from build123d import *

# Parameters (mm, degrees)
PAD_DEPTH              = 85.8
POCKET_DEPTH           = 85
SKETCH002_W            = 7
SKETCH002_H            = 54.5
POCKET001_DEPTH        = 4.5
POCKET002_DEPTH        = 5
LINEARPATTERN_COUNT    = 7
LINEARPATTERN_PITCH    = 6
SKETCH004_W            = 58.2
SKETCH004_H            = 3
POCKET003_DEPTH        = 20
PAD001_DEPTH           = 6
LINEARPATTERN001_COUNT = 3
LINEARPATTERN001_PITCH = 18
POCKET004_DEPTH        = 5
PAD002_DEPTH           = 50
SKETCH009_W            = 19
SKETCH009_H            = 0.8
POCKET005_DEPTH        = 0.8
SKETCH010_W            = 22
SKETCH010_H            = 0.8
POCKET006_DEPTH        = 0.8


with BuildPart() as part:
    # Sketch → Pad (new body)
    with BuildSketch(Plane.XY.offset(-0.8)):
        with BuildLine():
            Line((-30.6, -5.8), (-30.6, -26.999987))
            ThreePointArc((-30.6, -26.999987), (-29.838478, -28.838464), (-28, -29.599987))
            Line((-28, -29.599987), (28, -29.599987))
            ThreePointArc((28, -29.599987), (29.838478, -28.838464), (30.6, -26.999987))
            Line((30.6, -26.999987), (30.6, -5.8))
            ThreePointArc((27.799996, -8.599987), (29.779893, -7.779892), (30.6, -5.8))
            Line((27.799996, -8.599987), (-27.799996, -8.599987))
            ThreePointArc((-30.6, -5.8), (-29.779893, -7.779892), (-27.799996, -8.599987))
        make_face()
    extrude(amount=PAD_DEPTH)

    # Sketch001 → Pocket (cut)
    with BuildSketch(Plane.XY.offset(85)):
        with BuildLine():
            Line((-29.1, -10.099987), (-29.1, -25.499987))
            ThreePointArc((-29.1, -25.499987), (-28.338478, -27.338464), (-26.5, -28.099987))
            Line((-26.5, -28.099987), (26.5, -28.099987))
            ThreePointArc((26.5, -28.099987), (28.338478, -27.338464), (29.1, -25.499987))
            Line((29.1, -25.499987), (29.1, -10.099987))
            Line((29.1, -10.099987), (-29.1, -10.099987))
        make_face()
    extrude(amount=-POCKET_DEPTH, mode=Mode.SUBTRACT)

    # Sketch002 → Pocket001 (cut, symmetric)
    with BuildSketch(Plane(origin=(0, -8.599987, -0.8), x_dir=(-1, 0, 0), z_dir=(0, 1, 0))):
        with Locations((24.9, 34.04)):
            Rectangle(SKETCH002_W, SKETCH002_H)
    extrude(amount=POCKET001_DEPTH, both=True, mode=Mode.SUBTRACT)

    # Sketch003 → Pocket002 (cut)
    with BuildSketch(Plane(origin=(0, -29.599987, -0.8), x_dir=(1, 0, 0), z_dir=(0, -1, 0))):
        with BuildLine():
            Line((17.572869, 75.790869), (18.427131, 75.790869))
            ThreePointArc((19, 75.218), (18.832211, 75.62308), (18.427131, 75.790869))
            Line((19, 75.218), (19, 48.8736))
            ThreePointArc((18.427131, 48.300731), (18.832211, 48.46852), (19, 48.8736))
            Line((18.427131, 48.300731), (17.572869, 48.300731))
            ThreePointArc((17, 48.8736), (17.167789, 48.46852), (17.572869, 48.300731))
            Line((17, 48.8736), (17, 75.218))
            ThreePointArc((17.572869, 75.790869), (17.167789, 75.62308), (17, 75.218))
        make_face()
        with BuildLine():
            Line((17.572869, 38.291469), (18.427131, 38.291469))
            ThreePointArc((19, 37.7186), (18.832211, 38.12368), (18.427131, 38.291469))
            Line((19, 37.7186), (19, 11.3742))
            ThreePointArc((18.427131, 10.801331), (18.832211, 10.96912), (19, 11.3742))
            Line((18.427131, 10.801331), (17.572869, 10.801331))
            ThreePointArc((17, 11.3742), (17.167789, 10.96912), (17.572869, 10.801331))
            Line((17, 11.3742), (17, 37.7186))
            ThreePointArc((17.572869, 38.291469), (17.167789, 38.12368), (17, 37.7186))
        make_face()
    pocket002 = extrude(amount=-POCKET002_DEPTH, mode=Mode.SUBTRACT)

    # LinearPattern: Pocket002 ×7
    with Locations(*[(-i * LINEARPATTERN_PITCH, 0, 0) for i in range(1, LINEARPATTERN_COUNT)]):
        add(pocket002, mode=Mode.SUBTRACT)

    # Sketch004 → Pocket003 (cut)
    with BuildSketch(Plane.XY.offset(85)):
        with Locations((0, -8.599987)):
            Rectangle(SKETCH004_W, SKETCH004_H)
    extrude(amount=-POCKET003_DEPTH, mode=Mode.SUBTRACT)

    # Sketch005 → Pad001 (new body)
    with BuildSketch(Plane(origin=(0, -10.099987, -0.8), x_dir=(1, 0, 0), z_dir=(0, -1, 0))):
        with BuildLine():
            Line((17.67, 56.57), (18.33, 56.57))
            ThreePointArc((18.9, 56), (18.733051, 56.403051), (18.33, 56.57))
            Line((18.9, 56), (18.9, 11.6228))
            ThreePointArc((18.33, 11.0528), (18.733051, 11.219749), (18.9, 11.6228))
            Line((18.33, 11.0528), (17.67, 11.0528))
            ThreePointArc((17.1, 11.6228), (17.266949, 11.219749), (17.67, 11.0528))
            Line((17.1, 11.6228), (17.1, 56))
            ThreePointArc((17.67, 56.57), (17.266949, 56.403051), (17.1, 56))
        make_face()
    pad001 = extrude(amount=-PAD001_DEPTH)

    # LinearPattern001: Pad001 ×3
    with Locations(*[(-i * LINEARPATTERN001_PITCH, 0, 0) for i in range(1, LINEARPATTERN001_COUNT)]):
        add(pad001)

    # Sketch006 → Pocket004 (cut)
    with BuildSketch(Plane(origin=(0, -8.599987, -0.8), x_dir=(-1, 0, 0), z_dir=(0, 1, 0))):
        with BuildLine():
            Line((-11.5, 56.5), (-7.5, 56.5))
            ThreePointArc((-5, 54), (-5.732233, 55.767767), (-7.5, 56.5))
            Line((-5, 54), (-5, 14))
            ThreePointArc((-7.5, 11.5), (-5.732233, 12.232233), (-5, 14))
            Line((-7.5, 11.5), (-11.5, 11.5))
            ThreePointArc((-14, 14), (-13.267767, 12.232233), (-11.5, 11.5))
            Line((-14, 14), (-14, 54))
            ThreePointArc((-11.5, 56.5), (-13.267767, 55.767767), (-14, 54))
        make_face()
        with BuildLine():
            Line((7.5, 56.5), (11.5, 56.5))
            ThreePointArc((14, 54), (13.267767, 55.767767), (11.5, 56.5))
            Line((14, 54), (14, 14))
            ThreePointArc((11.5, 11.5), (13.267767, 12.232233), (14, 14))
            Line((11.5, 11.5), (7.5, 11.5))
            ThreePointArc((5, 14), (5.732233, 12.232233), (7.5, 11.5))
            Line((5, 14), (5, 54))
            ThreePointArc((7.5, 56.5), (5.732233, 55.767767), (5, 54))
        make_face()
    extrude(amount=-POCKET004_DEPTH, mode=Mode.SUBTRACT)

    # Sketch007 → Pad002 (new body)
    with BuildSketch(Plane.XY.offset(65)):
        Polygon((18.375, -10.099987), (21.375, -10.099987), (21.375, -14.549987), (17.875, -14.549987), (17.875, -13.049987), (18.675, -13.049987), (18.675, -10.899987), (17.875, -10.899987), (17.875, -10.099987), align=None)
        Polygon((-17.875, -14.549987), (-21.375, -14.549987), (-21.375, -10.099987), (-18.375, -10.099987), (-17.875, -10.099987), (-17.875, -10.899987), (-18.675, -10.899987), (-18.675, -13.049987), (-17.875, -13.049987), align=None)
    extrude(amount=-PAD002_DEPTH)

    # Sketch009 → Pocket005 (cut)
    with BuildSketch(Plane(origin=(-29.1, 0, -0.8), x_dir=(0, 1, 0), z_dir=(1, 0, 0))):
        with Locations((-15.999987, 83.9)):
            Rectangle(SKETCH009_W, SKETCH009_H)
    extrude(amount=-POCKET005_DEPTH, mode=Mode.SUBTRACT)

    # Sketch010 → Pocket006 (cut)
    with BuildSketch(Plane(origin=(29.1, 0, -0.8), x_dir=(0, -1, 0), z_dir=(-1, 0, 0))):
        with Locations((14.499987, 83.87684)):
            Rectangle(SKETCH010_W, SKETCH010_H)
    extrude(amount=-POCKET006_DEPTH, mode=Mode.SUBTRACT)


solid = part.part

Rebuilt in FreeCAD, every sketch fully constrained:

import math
import FreeCAD as App
import Part
import Sketcher

V = App.Vector
Q = App.Units.Quantity


def add_polygon(sketch, points):
    """Adds a closed chain of lines whose ends are joined by coincident constraints."""
    first, n = sketch.GeometryCount, len(points)
    for a, b in zip(points, points[1:] + points[:1]):
        sketch.addGeometry(Part.LineSegment(App.Vector(*a, 0), App.Vector(*b, 0)), False)
    for i in range(n):
        sketch.addConstraint(Sketcher.Constraint("Coincident", first + i, 2, first + (i + 1) % n, 1))

doc = App.newDocument("Part")
body = doc.addObject("PartDesign::Body", "Body")

# Sketch on XY plane
sketch1 = body.newObject("Sketcher::SketchObject", "Sketch")
sketch1.AttachmentSupport = (doc.getObject("XY_Plane"), [""])
sketch1.MapMode = "FlatFace"
sketch1.AttachmentOffset = App.Placement(V(0, 0, -0.8), App.Rotation())
sketch1.addGeometry([
    Part.LineSegment(V(-30.6, -5.8, 0), V(-30.6, -27, 0)),  # 0
    Part.ArcOfCircle(Part.Circle(V(-28, -27, 0), V(0, 0, 1), 2.6), math.radians(-180), math.radians(-90)),  # 1
    Part.LineSegment(V(-28, -29.6, 0), V(28, -29.6, 0)),  # 2
    Part.ArcOfCircle(Part.Circle(V(28, -27, 0), V(0, 0, 1), 2.6), math.radians(-90), math.radians(0)),  # 3
    Part.LineSegment(V(30.6, -27, 0), V(30.6, -5.8, 0)),  # 4
    Part.ArcOfCircle(Part.Circle(V(27.8, -5.8, 0), V(0, 0, 1), 2.8), math.radians(-90), math.radians(0)),  # 5
    Part.LineSegment(V(27.8, -8.6, 0), V(-27.8, -8.6, 0)),  # 6
    Part.ArcOfCircle(Part.Circle(V(-27.8, -5.8, 0), V(0, 0, 1), 2.8), math.radians(-180), math.radians(-90)),  # 7
], False)
sketch1.addConstraint([
    Sketcher.Constraint("Tangent", 0, 2, 1, 1),
    Sketcher.Constraint("Tangent", 1, 2, 2, 1),
    Sketcher.Constraint("Tangent", 2, 2, 3, 1),
    Sketcher.Constraint("Tangent", 3, 2, 4, 1),
    Sketcher.Constraint("Coincident", 4, 2, 5, 2),
    Sketcher.Constraint("Tangent", 5, 1, 6, 1),
    Sketcher.Constraint("Tangent", 6, 2, 7, 2),
    Sketcher.Constraint("Coincident", 7, 1, 0, 1),
    Sketcher.Constraint("Vertical", 0),
    Sketcher.Constraint("Horizontal", 2),
    Sketcher.Constraint("Vertical", 4),
    Sketcher.Constraint("Horizontal", 6),
    Sketcher.Constraint("Equal", 1, 3),
    Sketcher.Constraint("Equal", 5, 7),
    Sketcher.Constraint("Symmetric", 4, 2, 7, 1, -2),
    Sketcher.Constraint("Radius", 1, Q("2.6 mm")),
    Sketcher.Constraint("Radius", 5, Q("2.8 mm")),
    Sketcher.Constraint("DistanceX", 2, 1, 2, 2, Q("56 mm")),
    Sketcher.Constraint("DistanceY", 2, 2, 5, 1, Q("21 mm")),
    Sketcher.Constraint("DistanceY", 4, 2, -1, 1, Q("5.8 mm")),
    Sketcher.Constraint("DistanceY", 0, 2, 0, 1, Q("21.199987 mm")),
])
pad1 = body.newObject("PartDesign::Pad", "Pad")
pad1.Profile = sketch1
pad1.Length = 85.8

# Sketch on XY plane
sketch2 = body.newObject("Sketcher::SketchObject", "Sketch001")
sketch2.AttachmentSupport = (doc.getObject("XY_Plane"), [""])
sketch2.MapMode = "FlatFace"
sketch2.AttachmentOffset = App.Placement(V(0, 0, 85), App.Rotation())
sketch2.addGeometry([
    Part.LineSegment(V(-29.1, -10.1, 0), V(-29.1, -25.5, 0)),  # 0
    Part.ArcOfCircle(Part.Circle(V(-26.5, -25.5, 0), V(0, 0, 1), 2.6), math.radians(-180), math.radians(-90)),  # 1
    Part.LineSegment(V(-26.5, -28.1, 0), V(26.5, -28.1, 0)),  # 2
    Part.ArcOfCircle(Part.Circle(V(26.5, -25.5, 0), V(0, 0, 1), 2.6), math.radians(-90), math.radians(0)),  # 3
    Part.LineSegment(V(29.1, -25.5, 0), V(29.1, -10.1, 0)),  # 4
    Part.LineSegment(V(29.1, -10.1, 0), V(-29.1, -10.1, 0)),  # 5
], False)
sketch2.addConstraint([
    Sketcher.Constraint("Tangent", 0, 2, 1, 1),
    Sketcher.Constraint("Tangent", 1, 2, 2, 1),
    Sketcher.Constraint("Tangent", 2, 2, 3, 1),
    Sketcher.Constraint("Tangent", 3, 2, 4, 1),
    Sketcher.Constraint("Coincident", 4, 2, 5, 1),
    Sketcher.Constraint("Coincident", 5, 2, 0, 1),
    Sketcher.Constraint("Vertical", 0),
    Sketcher.Constraint("Horizontal", 2),
    Sketcher.Constraint("Vertical", 4),
    Sketcher.Constraint("Horizontal", 5),
    Sketcher.Constraint("Equal", 1, 3),
    Sketcher.Constraint("Radius", 1, Q("2.6 mm")),
    Sketcher.Constraint("DistanceX", 2, 1, 2, 2, Q("53 mm")),
    Sketcher.Constraint("DistanceY", 0, 2, 0, 1, Q("15.4 mm")),
    Sketcher.Constraint("DistanceX", 1, 3, -1, 1, Q("26.5 mm")),
    Sketcher.Constraint("DistanceY", 1, 3, -1, 1, Q("25.499987 mm")),
])
pocket1 = body.newObject("PartDesign::Pocket", "Pocket")
pocket1.Profile = sketch2
pocket1.Length = 85

# Sketch on XZ plane
sketch3 = body.newObject("Sketcher::SketchObject", "Sketch002")
sketch3.AttachmentSupport = (doc.getObject("XZ_Plane"), [""])
sketch3.MapMode = "FlatFace"
sketch3.AttachmentOffset = App.Placement(V(0, 0, 8.599987), App.Rotation())
add_polygon(sketch3, [(-21, 60), (-21, 6), (-28, 6), (-28, 60)])  # lines 0-3
sketch3.addConstraint([
    Sketcher.Constraint("Vertical", 0),
    Sketcher.Constraint("Horizontal", 1),
    Sketcher.Constraint("Vertical", 2),
    Sketcher.Constraint("Horizontal", 3),
    Sketcher.Constraint("DistanceX", 1, 2, 1, 1, Q("7 mm")),
    Sketcher.Constraint("DistanceY", 0, 2, 0, 1, Q("54.5 mm")),
    Sketcher.Constraint("DistanceX", 0, 2, -1, 1, Q("21.4 mm")),
    Sketcher.Constraint("DistanceY", -1, 1, 0, 2, Q("5.99 mm")),
])
pocket2 = body.newObject("PartDesign::Pocket", "Pocket001")
pocket2.Profile = sketch3
pocket2.Length = 9
pocket2.Midplane = True

# Sketch on XZ plane
sketch4 = body.newObject("Sketcher::SketchObject", "Sketch003")
sketch4.AttachmentSupport = (doc.getObject("XZ_Plane"), [""])
sketch4.MapMode = "FlatFace"
sketch4.AttachmentOffset = App.Placement(V(0, 0, 29.599987), App.Rotation())
sketch4.addGeometry([
    Part.LineSegment(V(18.4, 75, 0), V(17.6, 75, 0)),  # 0
    Part.ArcOfCircle(Part.Circle(V(17.6, 74.4, 0), V(0, 0, 1), 0.6), math.radians(90), math.radians(180)),  # 1
    Part.LineSegment(V(17, 74.4, 0), V(17, 48.1, 0)),  # 2
    Part.ArcOfCircle(Part.Circle(V(17.6, 48.1, 0), V(0, 0, 1), 0.6), math.radians(180), math.radians(270)),  # 3
    Part.LineSegment(V(17.6, 47.5, 0), V(18.4, 47.5, 0)),  # 4
    Part.ArcOfCircle(Part.Circle(V(18.4, 48.1, 0), V(0, 0, 1), 0.6), math.radians(-90), math.radians(0)),  # 5
    Part.LineSegment(V(19, 48.1, 0), V(19, 74.4, 0)),  # 6
    Part.ArcOfCircle(Part.Circle(V(18.4, 74.4, 0), V(0, 0, 1), 0.6), math.radians(0), math.radians(90)),  # 7
    Part.LineSegment(V(18.4, 37.5, 0), V(17.6, 37.5, 0)),  # 8
    Part.ArcOfCircle(Part.Circle(V(17.6, 36.9, 0), V(0, 0, 1), 0.6), math.radians(90), math.radians(180)),  # 9
    Part.LineSegment(V(17, 36.9, 0), V(17, 10.6, 0)),  # 10
    Part.ArcOfCircle(Part.Circle(V(17.6, 10.6, 0), V(0, 0, 1), 0.6), math.radians(180), math.radians(270)),  # 11
    Part.LineSegment(V(17.6, 10, 0), V(18.4, 10, 0)),  # 12
    Part.ArcOfCircle(Part.Circle(V(18.4, 10.6, 0), V(0, 0, 1), 0.6), math.radians(-90), math.radians(0)),  # 13
    Part.LineSegment(V(19, 10.6, 0), V(19, 36.9, 0)),  # 14
    Part.ArcOfCircle(Part.Circle(V(18.4, 36.9, 0), V(0, 0, 1), 0.6), math.radians(0), math.radians(90)),  # 15
], False)
sketch4.addConstraint([
    Sketcher.Constraint("Coincident", 0, 2, 1, 1),
    Sketcher.Constraint("Coincident", 1, 2, 2, 1),
    Sketcher.Constraint("Coincident", 2, 2, 3, 1),
    Sketcher.Constraint("Coincident", 3, 2, 4, 1),
    Sketcher.Constraint("Coincident", 4, 2, 5, 1),
    Sketcher.Constraint("Coincident", 5, 2, 6, 1),
    Sketcher.Constraint("Coincident", 6, 2, 7, 1),
    Sketcher.Constraint("Coincident", 7, 2, 0, 1),
    Sketcher.Constraint("Coincident", 8, 2, 9, 1),
    Sketcher.Constraint("Coincident", 9, 2, 10, 1),
    Sketcher.Constraint("Coincident", 10, 2, 11, 1),
    Sketcher.Constraint("Coincident", 11, 2, 12, 1),
    Sketcher.Constraint("Coincident", 12, 2, 13, 1),
    Sketcher.Constraint("Coincident", 13, 2, 14, 1),
    Sketcher.Constraint("Coincident", 14, 2, 15, 1),
    Sketcher.Constraint("Coincident", 15, 2, 8, 1),
    Sketcher.Constraint("Horizontal", 0),
    Sketcher.Constraint("Vertical", 2),
    Sketcher.Constraint("Horizontal", 4),
    Sketcher.Constraint("Vertical", 6),
    Sketcher.Constraint("Horizontal", 8),
    Sketcher.Constraint("Vertical", 10),
    Sketcher.Constraint("Horizontal", 12),
    Sketcher.Constraint("Vertical", 14),
    Sketcher.Constraint("Equal", 1, 3),
    Sketcher.Constraint("Equal", 3, 5),
    Sketcher.Constraint("Equal", 5, 7),
    Sketcher.Constraint("Equal", 7, 9),
    Sketcher.Constraint("Equal", 9, 11),
    Sketcher.Constraint("Equal", 11, 13),
    Sketcher.Constraint("Equal", 13, 15),
    Sketcher.Constraint("Horizontal", 7, 3, 1, 2),
    Sketcher.Constraint("Horizontal", 5, 3, 2, 2),
    Sketcher.Constraint("Horizontal", 2, 2, 5, 2),
    Sketcher.Constraint("Horizontal", 1, 2, 6, 2),
    Sketcher.Constraint("Horizontal", 15, 3, 9, 2),
    Sketcher.Constraint("Horizontal", 13, 3, 10, 2),
    Sketcher.Constraint("Horizontal", 10, 2, 13, 2),
    Sketcher.Constraint("Horizontal", 9, 2, 14, 2),
    Sketcher.Constraint("Vertical", 3, 3, 9, 3),
    Sketcher.Constraint("Vertical", 7, 3, 13, 3),
    Sketcher.Constraint("Vertical", 11, 3, 0, 2),
    Sketcher.Constraint("Vertical", 0, 2, 3, 2),
    Sketcher.Constraint("Vertical", 15, 3, 4, 2),
    Sketcher.Constraint("Vertical", 4, 2, 7, 2),
    Sketcher.Constraint("Vertical", 3, 2, 8, 2),
    Sketcher.Constraint("Vertical", 8, 2, 11, 2),
    Sketcher.Constraint("Vertical", 7, 2, 12, 2),
    Sketcher.Constraint("Vertical", 12, 2, 15, 2),
    Sketcher.Constraint("Equal", 6, 10),
    Sketcher.Constraint("DistanceX", -1, 1, 1, 2, Q("17 mm")),
    Sketcher.Constraint("DistanceX", -1, 1, 5, 2, Q("19 mm")),
    Sketcher.Constraint("DistanceY", 2, 2, 2, 1, Q("26.3444 mm")),
    Sketcher.Constraint("DistanceY", -1, 1, 1, 3, Q("74.418002 mm")),
    Sketcher.Constraint("Radius", 1, Q("0.572867 mm")),
    Sketcher.Constraint("DistanceY", 9, 3, 2, 2, Q("11.154998 mm")),
])
pocket3 = body.newObject("PartDesign::Pocket", "Pocket002")
pocket3.Profile = sketch4
pocket3.Length = 5
doc.recompute()

linearpattern = body.newObject("PartDesign::LinearPattern", "LinearPattern")
linearpattern.Originals = [pocket3]
linearpattern.Direction = (doc.getObject("X_Axis"), [""])
linearpattern.Mode = "offset"
linearpattern.Offset = 6
linearpattern.Occurrences = 7
linearpattern.Reversed = True
body.Tip = linearpattern

# Sketch on XY plane
sketch5 = body.newObject("Sketcher::SketchObject", "Sketch004")
sketch5.AttachmentSupport = (doc.getObject("XY_Plane"), [""])
sketch5.MapMode = "FlatFace"
sketch5.AttachmentOffset = App.Placement(V(0, 0, 85), App.Rotation())
add_polygon(sketch5, [(-29.1, -7.1), (-29.1, -10.1), (29.1, -10.1), (29.1, -7.1)])  # lines 0-3
sketch5.addConstraint([
    Sketcher.Constraint("Vertical", 0),
    Sketcher.Constraint("Horizontal", 1),
    Sketcher.Constraint("Vertical", 2),
    Sketcher.Constraint("Horizontal", 3),
    Sketcher.Constraint("DistanceY", 0, 2, 0, 1, Q("3 mm")),
    Sketcher.Constraint("DistanceX", 1, 1, 1, 2, Q("58.2 mm")),
    Sketcher.Constraint("DistanceX", 0, 2, -1, 1, Q("29.1 mm")),
    Sketcher.Constraint("DistanceY", 0, 2, -1, 1, Q("10.099987 mm")),
])
pocket4 = body.newObject("PartDesign::Pocket", "Pocket003")
pocket4.Profile = sketch5
pocket4.Length = 20

# Sketch on XZ plane
sketch6 = body.newObject("Sketcher::SketchObject", "Sketch005")
sketch6.AttachmentSupport = (doc.getObject("XZ_Plane"), [""])
sketch6.MapMode = "FlatFace"
sketch6.AttachmentOffset = App.Placement(V(0, 0, 10.099987), App.Rotation())
sketch6.addGeometry([
    Part.LineSegment(V(18.3, 55.8, 0), V(17.7, 55.8, 0)),  # 0
    Part.ArcOfCircle(Part.Circle(V(17.7, 55.2, 0), V(0, 0, 1), 0.6), math.radians(90), math.radians(180)),  # 1
    Part.LineSegment(V(17.1, 55.2, 0), V(17.1, 10.8, 0)),  # 2
    Part.ArcOfCircle(Part.Circle(V(17.7, 10.8, 0), V(0, 0, 1), 0.6), math.radians(180), math.radians(270)),  # 3
    Part.LineSegment(V(17.7, 10.3, 0), V(18.3, 10.3, 0)),  # 4
    Part.ArcOfCircle(Part.Circle(V(18.3, 10.8, 0), V(0, 0, 1), 0.6), math.radians(-90), math.radians(0)),  # 5
    Part.LineSegment(V(18.9, 10.8, 0), V(18.9, 55.2, 0)),  # 6
    Part.ArcOfCircle(Part.Circle(V(18.3, 55.2, 0), V(0, 0, 1), 0.6), math.radians(0), math.radians(90)),  # 7
], False)
sketch6.addConstraint([
    Sketcher.Constraint("Tangent", 0, 2, 1, 1),
    Sketcher.Constraint("Tangent", 1, 2, 2, 1),
    Sketcher.Constraint("Tangent", 2, 2, 3, 1),
    Sketcher.Constraint("Tangent", 3, 2, 4, 1),
    Sketcher.Constraint("Tangent", 4, 2, 5, 1),
    Sketcher.Constraint("Tangent", 5, 2, 6, 1),
    Sketcher.Constraint("Tangent", 6, 2, 7, 1),
    Sketcher.Constraint("Tangent", 7, 2, 0, 1),
    Sketcher.Constraint("Horizontal", 0),
    Sketcher.Constraint("Vertical", 2),
    Sketcher.Constraint("Horizontal", 4),
    Sketcher.Constraint("Vertical", 6),
    Sketcher.Constraint("Equal", 1, 3),
    Sketcher.Constraint("Equal", 3, 5),
    Sketcher.Constraint("Equal", 5, 7),
    Sketcher.Constraint("Radius", 1, Q("0.57 mm")),
    Sketcher.Constraint("DistanceX", 0, 2, 0, 1, Q("0.66 mm")),
    Sketcher.Constraint("DistanceY", -1, 1, 1, 3, Q("55.2 mm")),
    Sketcher.Constraint("DistanceX", -1, 1, 1, 2, Q("17.1 mm")),
    Sketcher.Constraint("DistanceY", 2, 2, 2, 1, Q("44.3772 mm")),
])
pad2 = body.newObject("PartDesign::Pad", "Pad001")
pad2.Profile = sketch6
pad2.Length = 6
pad2.Reversed = True
doc.recompute()

linearpattern2 = body.newObject("PartDesign::LinearPattern", "LinearPattern001")
linearpattern2.Originals = [pad2]
linearpattern2.Direction = (doc.getObject("X_Axis"), [""])
linearpattern2.Mode = "offset"
linearpattern2.Offset = 18
linearpattern2.Occurrences = 3
linearpattern2.Reversed = True
body.Tip = linearpattern2

# Sketch on XZ plane
sketch7 = body.newObject("Sketcher::SketchObject", "Sketch006")
sketch7.AttachmentSupport = (doc.getObject("XZ_Plane"), [""])
sketch7.MapMode = "FlatFace"
sketch7.AttachmentOffset = App.Placement(V(0, 0, 8.599987), App.Rotation())
sketch7.addGeometry([
    Part.LineSegment(V(7.5, 55.7, 0), V(11.5, 55.7, 0)),  # 0
    Part.ArcOfCircle(Part.Circle(V(11.5, 53.2, 0), V(0, 0, 1), 2.5), math.radians(0), math.radians(90)),  # 1
    Part.LineSegment(V(14, 53.2, 0), V(14, 13.2, 0)),  # 2
    Part.ArcOfCircle(Part.Circle(V(11.5, 13.2, 0), V(0, 0, 1), 2.5), math.radians(-90), math.radians(0)),  # 3
    Part.LineSegment(V(11.5, 10.7, 0), V(7.5, 10.7, 0)),  # 4
    Part.ArcOfCircle(Part.Circle(V(7.5, 13.2, 0), V(0, 0, 1), 2.5), math.radians(180), math.radians(270)),  # 5
    Part.LineSegment(V(5, 13.2, 0), V(5, 53.2, 0)),  # 6
    Part.ArcOfCircle(Part.Circle(V(7.5, 53.2, 0), V(0, 0, 1), 2.5), math.radians(90), math.radians(180)),  # 7
    Part.LineSegment(V(-11.5, 55.7, 0), V(-7.5, 55.7, 0)),  # 8
    Part.ArcOfCircle(Part.Circle(V(-7.5, 53.2, 0), V(0, 0, 1), 2.5), math.radians(0), math.radians(90)),  # 9
    Part.LineSegment(V(-5, 53.2, 0), V(-5, 13.2, 0)),  # 10
    Part.ArcOfCircle(Part.Circle(V(-7.5, 13.2, 0), V(0, 0, 1), 2.5), math.radians(-90), math.radians(0)),  # 11
    Part.LineSegment(V(-7.5, 10.7, 0), V(-11.5, 10.7, 0)),  # 12
    Part.ArcOfCircle(Part.Circle(V(-11.5, 13.2, 0), V(0, 0, 1), 2.5), math.radians(180), math.radians(270)),  # 13
    Part.LineSegment(V(-14, 13.2, 0), V(-14, 53.2, 0)),  # 14
    Part.ArcOfCircle(Part.Circle(V(-11.5, 53.2, 0), V(0, 0, 1), 2.5), math.radians(90), math.radians(180)),  # 15
], False)
sketch7.addConstraint([
    Sketcher.Constraint("Tangent", 0, 2, 1, 2),
    Sketcher.Constraint("Tangent", 1, 1, 2, 1),
    Sketcher.Constraint("Tangent", 2, 2, 3, 2),
    Sketcher.Constraint("Tangent", 3, 1, 4, 1),
    Sketcher.Constraint("Tangent", 4, 2, 5, 2),
    Sketcher.Constraint("Tangent", 5, 1, 6, 1),
    Sketcher.Constraint("Tangent", 6, 2, 7, 2),
    Sketcher.Constraint("Tangent", 7, 1, 0, 1),
    Sketcher.Constraint("Tangent", 8, 2, 9, 2),
    Sketcher.Constraint("Tangent", 9, 1, 10, 1),
    Sketcher.Constraint("Tangent", 10, 2, 11, 2),
    Sketcher.Constraint("Tangent", 11, 1, 12, 1),
    Sketcher.Constraint("Tangent", 12, 2, 13, 2),
    Sketcher.Constraint("Tangent", 13, 1, 14, 1),
    Sketcher.Constraint("Tangent", 14, 2, 15, 2),
    Sketcher.Constraint("Tangent", 15, 1, 8, 1),
    Sketcher.Constraint("Horizontal", 0),
    Sketcher.Constraint("Vertical", 2),
    Sketcher.Constraint("Horizontal", 4),
    Sketcher.Constraint("Vertical", 6),
    Sketcher.Constraint("Horizontal", 8),
    Sketcher.Constraint("Vertical", 10),
    Sketcher.Constraint("Horizontal", 12),
    Sketcher.Constraint("Vertical", 14),
    Sketcher.Constraint("Equal", 1, 3),
    Sketcher.Constraint("Equal", 3, 5),
    Sketcher.Constraint("Equal", 5, 7),
    Sketcher.Constraint("Equal", 7, 9),
    Sketcher.Constraint("Equal", 9, 11),
    Sketcher.Constraint("Equal", 11, 13),
    Sketcher.Constraint("Equal", 13, 15),
    Sketcher.Constraint("Symmetric", 7, 3, 9, 3, -2),
    Sketcher.Constraint("Symmetric", 3, 3, 13, 3, -2),
    Sketcher.Constraint("Radius", 1, Q("2.5 mm")),
    Sketcher.Constraint("DistanceX", 0, 1, 0, 2, Q("4 mm")),
    Sketcher.Constraint("DistanceY", 2, 2, 2, 1, Q("40 mm")),
    Sketcher.Constraint("DistanceX", -1, 1, 1, 1, Q("14 mm")),
    Sketcher.Constraint("DistanceY", -1, 1, 1, 3, Q("53.2 mm")),
])
pocket5 = body.newObject("PartDesign::Pocket", "Pocket004")
pocket5.Profile = sketch7
pocket5.Length = 5
pocket5.Reversed = True

# Sketch on XY plane
sketch8 = body.newObject("Sketcher::SketchObject", "Sketch007")
sketch8.AttachmentSupport = (doc.getObject("XY_Plane"), [""])
sketch8.MapMode = "FlatFace"
sketch8.AttachmentOffset = App.Placement(V(0, 0, 65), App.Rotation())
add_polygon(sketch8, [(21.4, -10.1), (17.9, -10.1), (17.9, -10.9), (18.7, -10.9), (18.7, -13), (17.9, -13), (17.9, -14.5), (21.4, -14.5)])  # lines 0-7
add_polygon(sketch8, [(-21.4, -14.5), (-17.9, -14.5), (-17.9, -13), (-18.7, -13), (-18.7, -10.9), (-17.9, -10.9), (-17.9, -10.1), (-21.4, -10.1)])  # lines 8-15
sketch8.addConstraint([
    Sketcher.Constraint("Horizontal", 0),
    Sketcher.Constraint("Vertical", 1),
    Sketcher.Constraint("Horizontal", 2),
    Sketcher.Constraint("Vertical", 3),
    Sketcher.Constraint("Horizontal", 4),
    Sketcher.Constraint("Vertical", 5),
    Sketcher.Constraint("Horizontal", 6),
    Sketcher.Constraint("Vertical", 7),
    Sketcher.Constraint("Horizontal", 8),
    Sketcher.Constraint("Vertical", 9),
    Sketcher.Constraint("Horizontal", 10),
    Sketcher.Constraint("Vertical", 11),
    Sketcher.Constraint("Horizontal", 12),
    Sketcher.Constraint("Vertical", 13),
    Sketcher.Constraint("Horizontal", 14),
    Sketcher.Constraint("Vertical", 15),
    Sketcher.Constraint("Symmetric", 5, 2, 8, 2, -2),
    Sketcher.Constraint("Symmetric", 3, 2, 10, 2, -2),
    Sketcher.Constraint("Symmetric", 1, 2, 12, 2, -2),
    Sketcher.Constraint("Symmetric", 7, 2, 14, 2, -2),
    Sketcher.Constraint("Vertical", 1, 2, 4, 2),
    Sketcher.Constraint("Equal", 12, 1),
    Sketcher.Constraint("DistanceX", 0, 2, 0, 1, Q("3.5 mm")),
    Sketcher.Constraint("DistanceX", 2, 1, 2, 2, Q("0.8 mm")),
    Sketcher.Constraint("DistanceY", 5, 2, 5, 1, Q("1.5 mm")),
    Sketcher.Constraint("DistanceY", 3, 2, 3, 1, Q("2.15 mm")),
    Sketcher.Constraint("DistanceX", 8, 2, 5, 2, Q("35.75 mm")),
    Sketcher.Constraint("DistanceY", 0, 2, -1, 1, Q("10.099987 mm")),
])
pad3 = body.newObject("PartDesign::Pad", "Pad002")
pad3.Profile = sketch8
pad3.Length = 50
pad3.Reversed = True

# Sketch on YZ plane
sketch9 = body.newObject("Sketcher::SketchObject", "Sketch008")
sketch9.AttachmentSupport = (doc.getObject("YZ_Plane"), [""])
sketch9.MapMode = "FlatFace"
sketch9.AttachmentOffset = App.Placement(V(0, 0, -29.1), App.Rotation())
add_polygon(sketch9, [(-25.5, 83.5), (-25.5, 82.7), (-6.5, 82.7), (-6.5, 83.5)])  # lines 0-3
sketch9.addConstraint([
    Sketcher.Constraint("Vertical", 0),
    Sketcher.Constraint("Horizontal", 1),
    Sketcher.Constraint("Vertical", 2),
    Sketcher.Constraint("Horizontal", 3),
    Sketcher.Constraint("DistanceX", 1, 1, 1, 2, Q("19 mm")),
    Sketcher.Constraint("DistanceY", 0, 2, 0, 1, Q("0.8 mm")),
    Sketcher.Constraint("DistanceY", -1, 1, 0, 2, Q("82.7 mm")),
    Sketcher.Constraint("DistanceX", 0, 2, -1, 1, Q("25.499987 mm")),
])
pocket6 = body.newObject("PartDesign::Pocket", "Pocket005")
pocket6.Profile = sketch9
pocket6.Length = 0.8

# Sketch on YZ plane
sketch10 = body.newObject("Sketcher::SketchObject", "Sketch009")
sketch10.AttachmentSupport = (doc.getObject("YZ_Plane"), [""])
sketch10.MapMode = "FlatFace"
sketch10.AttachmentOffset = App.Placement(V(0, 0, 29.1), App.Rotation())
add_polygon(sketch10, [(-3.5, 83.5), (-3.5, 82.7), (-25.5, 82.7), (-25.5, 83.5)])  # lines 0-3
sketch10.addConstraint([
    Sketcher.Constraint("Vertical", 0),
    Sketcher.Constraint("Horizontal", 1),
    Sketcher.Constraint("Vertical", 2),
    Sketcher.Constraint("Horizontal", 3),
    Sketcher.Constraint("DistanceX", 1, 2, 1, 1, Q("22 mm")),
    Sketcher.Constraint("DistanceY", 0, 2, 0, 1, Q("0.8 mm")),
    Sketcher.Constraint("DistanceY", -1, 1, 0, 2, Q("82.67684 mm")),
    Sketcher.Constraint("DistanceX", 0, 2, -1, 1, Q("3.499987 mm")),
])
pocket7 = body.newObject("PartDesign::Pocket", "Pocket006")
pocket7.Profile = sketch10
pocket7.Length = 0.8
pocket7.Reversed = True

doc.recompute()
